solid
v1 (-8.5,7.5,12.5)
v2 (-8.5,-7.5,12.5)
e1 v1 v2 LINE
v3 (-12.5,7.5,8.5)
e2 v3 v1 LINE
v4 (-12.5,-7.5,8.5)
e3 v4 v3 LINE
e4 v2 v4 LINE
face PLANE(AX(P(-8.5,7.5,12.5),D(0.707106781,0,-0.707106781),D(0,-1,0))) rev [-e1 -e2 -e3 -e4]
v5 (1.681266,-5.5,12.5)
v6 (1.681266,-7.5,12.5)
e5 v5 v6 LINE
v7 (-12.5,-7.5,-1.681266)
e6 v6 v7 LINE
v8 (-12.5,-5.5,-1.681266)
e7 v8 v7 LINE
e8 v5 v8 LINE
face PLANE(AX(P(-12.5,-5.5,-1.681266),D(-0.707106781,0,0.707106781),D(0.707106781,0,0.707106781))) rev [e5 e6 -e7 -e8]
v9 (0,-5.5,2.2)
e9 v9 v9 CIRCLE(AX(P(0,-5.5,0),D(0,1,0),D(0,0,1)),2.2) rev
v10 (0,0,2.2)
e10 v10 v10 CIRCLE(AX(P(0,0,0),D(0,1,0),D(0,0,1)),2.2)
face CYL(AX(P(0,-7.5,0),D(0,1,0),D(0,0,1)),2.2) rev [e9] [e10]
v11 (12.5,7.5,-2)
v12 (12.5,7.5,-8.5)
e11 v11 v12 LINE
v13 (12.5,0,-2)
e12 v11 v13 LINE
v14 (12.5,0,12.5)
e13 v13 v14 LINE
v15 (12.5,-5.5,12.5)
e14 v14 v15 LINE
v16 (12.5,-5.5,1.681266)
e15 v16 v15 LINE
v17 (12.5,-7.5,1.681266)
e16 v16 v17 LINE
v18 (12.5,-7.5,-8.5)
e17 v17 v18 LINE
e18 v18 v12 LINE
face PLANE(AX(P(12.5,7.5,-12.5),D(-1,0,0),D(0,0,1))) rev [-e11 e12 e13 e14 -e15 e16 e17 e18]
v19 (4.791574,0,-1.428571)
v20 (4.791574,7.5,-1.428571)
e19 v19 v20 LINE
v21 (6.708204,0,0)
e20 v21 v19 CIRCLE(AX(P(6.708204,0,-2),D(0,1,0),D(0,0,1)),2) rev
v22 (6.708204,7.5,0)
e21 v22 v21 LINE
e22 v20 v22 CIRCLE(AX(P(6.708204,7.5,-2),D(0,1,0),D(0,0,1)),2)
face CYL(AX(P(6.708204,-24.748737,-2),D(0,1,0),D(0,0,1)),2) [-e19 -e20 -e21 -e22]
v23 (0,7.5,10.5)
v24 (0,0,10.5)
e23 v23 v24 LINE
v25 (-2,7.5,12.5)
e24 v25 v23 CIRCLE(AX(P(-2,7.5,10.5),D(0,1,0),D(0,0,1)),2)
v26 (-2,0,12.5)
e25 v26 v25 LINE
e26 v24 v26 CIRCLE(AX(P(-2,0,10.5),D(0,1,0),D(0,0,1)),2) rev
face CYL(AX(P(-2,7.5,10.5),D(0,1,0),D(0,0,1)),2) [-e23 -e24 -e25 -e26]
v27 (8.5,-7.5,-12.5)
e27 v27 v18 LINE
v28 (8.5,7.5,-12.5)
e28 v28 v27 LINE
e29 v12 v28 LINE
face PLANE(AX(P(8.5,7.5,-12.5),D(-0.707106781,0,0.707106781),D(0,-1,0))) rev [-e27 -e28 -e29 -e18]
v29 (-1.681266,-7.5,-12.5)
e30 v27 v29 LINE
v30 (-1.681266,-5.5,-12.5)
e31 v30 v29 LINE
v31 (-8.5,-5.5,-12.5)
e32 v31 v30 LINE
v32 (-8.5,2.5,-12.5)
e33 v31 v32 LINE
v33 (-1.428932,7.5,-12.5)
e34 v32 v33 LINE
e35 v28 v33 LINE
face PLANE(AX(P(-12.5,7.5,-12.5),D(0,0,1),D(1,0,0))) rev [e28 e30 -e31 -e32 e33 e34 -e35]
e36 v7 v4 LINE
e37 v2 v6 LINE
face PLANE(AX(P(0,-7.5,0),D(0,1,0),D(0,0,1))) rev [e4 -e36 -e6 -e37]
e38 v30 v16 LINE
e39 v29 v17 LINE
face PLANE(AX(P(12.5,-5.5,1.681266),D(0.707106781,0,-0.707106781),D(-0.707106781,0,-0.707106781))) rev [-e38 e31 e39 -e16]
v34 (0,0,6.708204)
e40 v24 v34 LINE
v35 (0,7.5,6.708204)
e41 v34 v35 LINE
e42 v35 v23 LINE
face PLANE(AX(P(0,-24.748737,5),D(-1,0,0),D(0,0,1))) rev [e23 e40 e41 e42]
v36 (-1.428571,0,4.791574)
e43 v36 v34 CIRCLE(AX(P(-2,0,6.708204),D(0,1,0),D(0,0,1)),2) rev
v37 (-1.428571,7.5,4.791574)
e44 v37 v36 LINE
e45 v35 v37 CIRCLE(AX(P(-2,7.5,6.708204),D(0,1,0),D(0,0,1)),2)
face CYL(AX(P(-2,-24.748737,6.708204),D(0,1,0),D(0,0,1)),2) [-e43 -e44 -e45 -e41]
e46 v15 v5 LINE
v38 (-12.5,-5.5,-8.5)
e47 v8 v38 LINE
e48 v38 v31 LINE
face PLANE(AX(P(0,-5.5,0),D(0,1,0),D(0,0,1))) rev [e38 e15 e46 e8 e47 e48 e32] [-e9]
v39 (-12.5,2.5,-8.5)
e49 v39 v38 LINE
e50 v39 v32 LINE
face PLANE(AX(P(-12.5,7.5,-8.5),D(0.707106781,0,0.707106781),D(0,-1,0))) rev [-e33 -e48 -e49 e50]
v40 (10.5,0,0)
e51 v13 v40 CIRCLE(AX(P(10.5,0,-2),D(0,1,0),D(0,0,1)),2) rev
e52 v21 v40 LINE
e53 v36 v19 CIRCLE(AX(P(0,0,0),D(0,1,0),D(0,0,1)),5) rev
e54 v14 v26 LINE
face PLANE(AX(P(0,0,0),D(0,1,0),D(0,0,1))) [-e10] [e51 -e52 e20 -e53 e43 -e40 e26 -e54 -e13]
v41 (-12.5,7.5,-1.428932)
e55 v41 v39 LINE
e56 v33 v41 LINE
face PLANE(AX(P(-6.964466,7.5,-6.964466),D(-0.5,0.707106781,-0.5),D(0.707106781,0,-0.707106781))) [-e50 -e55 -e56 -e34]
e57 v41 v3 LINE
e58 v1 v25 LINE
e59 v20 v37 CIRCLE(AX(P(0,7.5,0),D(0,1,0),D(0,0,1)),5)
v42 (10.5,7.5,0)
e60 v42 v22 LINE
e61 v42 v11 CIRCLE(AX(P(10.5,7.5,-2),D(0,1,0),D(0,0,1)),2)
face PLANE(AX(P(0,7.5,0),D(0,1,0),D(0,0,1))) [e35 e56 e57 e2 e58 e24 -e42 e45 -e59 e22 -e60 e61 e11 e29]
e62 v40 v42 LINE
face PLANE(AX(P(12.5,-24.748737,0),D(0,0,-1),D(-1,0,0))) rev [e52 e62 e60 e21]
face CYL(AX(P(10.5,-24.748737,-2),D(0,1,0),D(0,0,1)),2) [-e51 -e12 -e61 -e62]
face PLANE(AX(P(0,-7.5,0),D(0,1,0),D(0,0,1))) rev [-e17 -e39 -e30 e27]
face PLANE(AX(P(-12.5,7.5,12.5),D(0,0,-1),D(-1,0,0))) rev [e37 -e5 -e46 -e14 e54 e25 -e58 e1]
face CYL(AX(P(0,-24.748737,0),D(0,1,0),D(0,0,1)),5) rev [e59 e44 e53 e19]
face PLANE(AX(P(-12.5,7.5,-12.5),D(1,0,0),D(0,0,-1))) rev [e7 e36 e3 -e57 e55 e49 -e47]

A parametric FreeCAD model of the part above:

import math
import FreeCAD as App
import Part
import Sketcher
from FreeCAD import Vector
Q = App.Units.Quantity


def edges_at(feature, points):
    """Names of the edges that pass closest to the given points."""
    edges = feature.Shape.Edges
    near = lambda p: min(range(len(edges)), key=lambda i: edges[i].distToShape(Part.Vertex(*p))[0])
    return sorted({f"Edge{near(p) + 1}" for p in points})

doc = App.newDocument("Part")
body = doc.addObject("PartDesign::Body", "Body")

# Sketch on XZ plane
sketch1 = doc.addObject("Sketcher::SketchObject", "Sketch")
body.addObject(sketch1)
sketch1.AttachmentSupport = (doc.XZ_Plane, [""])
sketch1.MapMode = "FlatFace"
sketch1.addGeometry(Part.LineSegment(Vector(-12, -12, 0), Vector(-12, 12, 0)), False)
sketch1.addGeometry(Part.LineSegment(Vector(-12, 12, 0), Vector(12, 12, 0)), False)
sketch1.addGeometry(Part.LineSegment(Vector(12, 12, 0), Vector(12, -12, 0)), False)
sketch1.addGeometry(Part.LineSegment(Vector(12, -12, 0), Vector(-12, -12, 0)), False)
sketch1.addConstraint(Sketcher.Constraint("Coincident", 0, 2, 1, 1))
sketch1.addConstraint(Sketcher.Constraint("Coincident", 1, 2, 2, 1))
sketch1.addConstraint(Sketcher.Constraint("Coincident", 2, 2, 3, 1))
sketch1.addConstraint(Sketcher.Constraint("Coincident", 3, 2, 0, 1))
sketch1.addConstraint(Sketcher.Constraint("Vertical", 0))
sketch1.addConstraint(Sketcher.Constraint("Horizontal", 1))
sketch1.addConstraint(Sketcher.Constraint("Vertical", 2))
sketch1.addConstraint(Sketcher.Constraint("Horizontal", 3))
sketch1.addConstraint(Sketcher.Constraint("Symmetric", 0, 2, 2, 2, -1, 1))
sketch1.addConstraint(Sketcher.Constraint("Equal", 3, 0))
sketch1.addConstraint(Sketcher.Constraint("DistanceX", 1, 1, 1, 2, 25.0))
pad1 = doc.addObject("PartDesign::Pad", "Pad")
body.addObject(pad1)
pad1.Profile = sketch1
pad1.Length = 15
pad1.Midplane = True

# Sketch on XZ plane
sketch2 = doc.addObject("Sketcher::SketchObject", "Sketch001")
body.addObject(sketch2)
sketch2.AttachmentSupport = (doc.XZ_Plane, [""])
sketch2.MapMode = "FlatFace"
sketch2.addGeometry(Part.LineSegment(Vector(12, 0, 0), Vector(5, 0, 0)), False)
sketch2.addGeometry(Part.ArcOfCircle(Part.Circle(Vector(0, 0, 0), Vector(0, 0, 1), 5), math.radians(90), math.radians(360)), False)
sketch2.addGeometry(Part.LineSegment(Vector(0, 5, 0), Vector(0, 12, 0)), False)
sketch2.addGeometry(Part.LineSegment(Vector(0, 12, 0), Vector(12, 12, 0)), False)
sketch2.addGeometry(Part.LineSegment(Vector(12, 12, 0), Vector(12, 0, 0)), False)
sketch2.addConstraint(Sketcher.Constraint("Coincident", 0, 2, 1, 2))
sketch2.addConstraint(Sketcher.Constraint("Coincident", 1, 1, 2, 1))
sketch2.addConstraint(Sketcher.Constraint("Coincident", 2, 2, 3, 1))
sketch2.addConstraint(Sketcher.Constraint("Coincident", 3, 2, 4, 1))
sketch2.addConstraint(Sketcher.Constraint("Coincident", 4, 2, 0, 1))
sketch2.addConstraint(Sketcher.Constraint("Horizontal", 0))
sketch2.addConstraint(Sketcher.Constraint("Vertical", 2))
sketch2.addConstraint(Sketcher.Constraint("Horizontal", 3))
sketch2.addConstraint(Sketcher.Constraint("Vertical", 4))
sketch2.addConstraint(Sketcher.Constraint("Coincident", 1, 3, -1, 1))
sketch2.addConstraint(Sketcher.Constraint("PointOnObject", 0, 2, -1))
sketch2.addConstraint(Sketcher.Constraint("PointOnObject", 1, 1, -2))
sketch2.addConstraint(Sketcher.Constraint("Equal", 0, 2))
sketch2.addConstraint(Sketcher.Constraint("Radius", 1, 5.0))
sketch2.addConstraint(Sketcher.Constraint("DistanceX", 0, 2, 0, 1, 7.5))
pocket1 = doc.addObject("PartDesign::Pocket", "Pocket")
body.addObject(pocket1)
pocket1.Profile = sketch2
pocket1.Length = 7.5

# Sketch on XZ plane
sketch3 = doc.addObject("Sketcher::SketchObject", "Sketch002")
body.addObject(sketch3)
sketch3.AttachmentSupport = (doc.XZ_Plane, [""])
sketch3.MapMode = "FlatFace"
sketch3.addGeometry(Part.Circle(Vector(0, 0, 0), Vector(0, 0, 1), 2.2), False)
sketch3.addConstraint(Sketcher.Constraint("Coincident", 0, 3, -1, 1))
sketch3.addConstraint(Sketcher.Constraint("Diameter", 0, 4.4))
pocket2 = doc.addObject("PartDesign::Pocket", "Pocket001")
body.addObject(pocket2)
pocket2.Profile = sketch3
pocket2.Type = "ThroughAll"
pocket2.Reversed = True

# Sketch on XZ plane
sketch4 = doc.addObject("Sketcher::SketchObject", "Sketch003")
body.addObject(sketch4)
sketch4.AttachmentSupport = (doc.XZ_Plane, [""])
sketch4.MapMode = "FlatFace"
sketch4.AttachmentOffset = App.Placement(Vector(0, 0, 7.5), App.Rotation())
sketch4.addGeometry(Part.LineSegment(Vector(2, 12, 0), Vector(-12, -2, 0)), False)
sketch4.addGeometry(Part.LineSegment(Vector(-12, -2, 0), Vector(-12, -12, 0)), False)
sketch4.addGeometry(Part.LineSegment(Vector(-12, -12, 0), Vector(-2, -12, 0)), False)
sketch4.addGeometry(Part.LineSegment(Vector(-2, -12, 0), Vector(12, 2, 0)), False)
sketch4.addGeometry(Part.LineSegment(Vector(12, 2, 0), Vector(12, 12, 0)), False)
sketch4.addGeometry(Part.LineSegment(Vector(12, 12, 0), Vector(2, 12, 0)), False)
sketch4.addConstraint(Sketcher.Constraint("Coincident", 0, 2, 1, 1))
sketch4.addConstraint(Sketcher.Constraint("Coincident", 1, 2, 2, 1))
sketch4.addConstraint(Sketcher.Constraint("Coincident", 2, 2, 3, 1))
sketch4.addConstraint(Sketcher.Constraint("Coincident", 3, 2, 4, 1))
sketch4.addConstraint(Sketcher.Constraint("Coincident", 4, 2, 5, 1))
sketch4.addConstraint(Sketcher.Constraint("Coincident", 5, 2, 0, 1))
sketch4.addConstraint(Sketcher.Constraint("Vertical", 1))
sketch4.addConstraint(Sketcher.Constraint("Horizontal", 2))
sketch4.addConstraint(Sketcher.Constraint("Vertical", 4))
sketch4.addConstraint(Sketcher.Constraint("Horizontal", 5))
sketch4.addConstraint(Sketcher.Constraint("Symmetric", 0, 2, 3, 2, -1, 1))
sketch4.addConstraint(Sketcher.Constraint("Symmetric", 2, 2, 5, 2, -1, 1))
sketch4.addConstraint(Sketcher.Constraint("Equal", 5, 1))
sketch4.addConstraint(Sketcher.Constraint("Angle", 0, Q("-135 deg")))
sketch4.addConstraint(Sketcher.Constraint("DistanceX", 0, 2, 3, 2, 25.0))
sketch4.addConstraint(Sketcher.Constraint("Distance", 0, 20.055339))
pocket3 = doc.addObject("PartDesign::Pocket", "Pocket002")
body.addObject(pocket3)
pocket3.Profile = sketch4
pocket3.Length = 2
doc.recompute()

chamfer = doc.addObject("PartDesign::Chamfer", "Chamfer")
body.addObject(chamfer)
chamfer.Base = (pocket3, edges_at(pocket3, [(-12.5, 0, 12.5), (-12.5, 1, -12.5), (12.5, 0, -12.5)]))
chamfer.Size = 4
doc.recompute()

chamfer2 = doc.addObject("PartDesign::Chamfer", "Chamfer001")
body.addObject(chamfer2)
chamfer2.Base = (chamfer, edges_at(chamfer, [(-10.5, 7.5, -10.5)]))
chamfer2.Size = 5
doc.recompute()

fillet = doc.addObject("PartDesign::Fillet", "Fillet")
body.addObject(fillet)
fillet.Base = (chamfer2, edges_at(chamfer2, [
    (12.5, 3.75, 0),
    (0, 3.75, 12.5),
    (0, 3.75, 5),
    (5, 3.75, 0),
]))
fillet.Radius = 2

doc.recompute()
